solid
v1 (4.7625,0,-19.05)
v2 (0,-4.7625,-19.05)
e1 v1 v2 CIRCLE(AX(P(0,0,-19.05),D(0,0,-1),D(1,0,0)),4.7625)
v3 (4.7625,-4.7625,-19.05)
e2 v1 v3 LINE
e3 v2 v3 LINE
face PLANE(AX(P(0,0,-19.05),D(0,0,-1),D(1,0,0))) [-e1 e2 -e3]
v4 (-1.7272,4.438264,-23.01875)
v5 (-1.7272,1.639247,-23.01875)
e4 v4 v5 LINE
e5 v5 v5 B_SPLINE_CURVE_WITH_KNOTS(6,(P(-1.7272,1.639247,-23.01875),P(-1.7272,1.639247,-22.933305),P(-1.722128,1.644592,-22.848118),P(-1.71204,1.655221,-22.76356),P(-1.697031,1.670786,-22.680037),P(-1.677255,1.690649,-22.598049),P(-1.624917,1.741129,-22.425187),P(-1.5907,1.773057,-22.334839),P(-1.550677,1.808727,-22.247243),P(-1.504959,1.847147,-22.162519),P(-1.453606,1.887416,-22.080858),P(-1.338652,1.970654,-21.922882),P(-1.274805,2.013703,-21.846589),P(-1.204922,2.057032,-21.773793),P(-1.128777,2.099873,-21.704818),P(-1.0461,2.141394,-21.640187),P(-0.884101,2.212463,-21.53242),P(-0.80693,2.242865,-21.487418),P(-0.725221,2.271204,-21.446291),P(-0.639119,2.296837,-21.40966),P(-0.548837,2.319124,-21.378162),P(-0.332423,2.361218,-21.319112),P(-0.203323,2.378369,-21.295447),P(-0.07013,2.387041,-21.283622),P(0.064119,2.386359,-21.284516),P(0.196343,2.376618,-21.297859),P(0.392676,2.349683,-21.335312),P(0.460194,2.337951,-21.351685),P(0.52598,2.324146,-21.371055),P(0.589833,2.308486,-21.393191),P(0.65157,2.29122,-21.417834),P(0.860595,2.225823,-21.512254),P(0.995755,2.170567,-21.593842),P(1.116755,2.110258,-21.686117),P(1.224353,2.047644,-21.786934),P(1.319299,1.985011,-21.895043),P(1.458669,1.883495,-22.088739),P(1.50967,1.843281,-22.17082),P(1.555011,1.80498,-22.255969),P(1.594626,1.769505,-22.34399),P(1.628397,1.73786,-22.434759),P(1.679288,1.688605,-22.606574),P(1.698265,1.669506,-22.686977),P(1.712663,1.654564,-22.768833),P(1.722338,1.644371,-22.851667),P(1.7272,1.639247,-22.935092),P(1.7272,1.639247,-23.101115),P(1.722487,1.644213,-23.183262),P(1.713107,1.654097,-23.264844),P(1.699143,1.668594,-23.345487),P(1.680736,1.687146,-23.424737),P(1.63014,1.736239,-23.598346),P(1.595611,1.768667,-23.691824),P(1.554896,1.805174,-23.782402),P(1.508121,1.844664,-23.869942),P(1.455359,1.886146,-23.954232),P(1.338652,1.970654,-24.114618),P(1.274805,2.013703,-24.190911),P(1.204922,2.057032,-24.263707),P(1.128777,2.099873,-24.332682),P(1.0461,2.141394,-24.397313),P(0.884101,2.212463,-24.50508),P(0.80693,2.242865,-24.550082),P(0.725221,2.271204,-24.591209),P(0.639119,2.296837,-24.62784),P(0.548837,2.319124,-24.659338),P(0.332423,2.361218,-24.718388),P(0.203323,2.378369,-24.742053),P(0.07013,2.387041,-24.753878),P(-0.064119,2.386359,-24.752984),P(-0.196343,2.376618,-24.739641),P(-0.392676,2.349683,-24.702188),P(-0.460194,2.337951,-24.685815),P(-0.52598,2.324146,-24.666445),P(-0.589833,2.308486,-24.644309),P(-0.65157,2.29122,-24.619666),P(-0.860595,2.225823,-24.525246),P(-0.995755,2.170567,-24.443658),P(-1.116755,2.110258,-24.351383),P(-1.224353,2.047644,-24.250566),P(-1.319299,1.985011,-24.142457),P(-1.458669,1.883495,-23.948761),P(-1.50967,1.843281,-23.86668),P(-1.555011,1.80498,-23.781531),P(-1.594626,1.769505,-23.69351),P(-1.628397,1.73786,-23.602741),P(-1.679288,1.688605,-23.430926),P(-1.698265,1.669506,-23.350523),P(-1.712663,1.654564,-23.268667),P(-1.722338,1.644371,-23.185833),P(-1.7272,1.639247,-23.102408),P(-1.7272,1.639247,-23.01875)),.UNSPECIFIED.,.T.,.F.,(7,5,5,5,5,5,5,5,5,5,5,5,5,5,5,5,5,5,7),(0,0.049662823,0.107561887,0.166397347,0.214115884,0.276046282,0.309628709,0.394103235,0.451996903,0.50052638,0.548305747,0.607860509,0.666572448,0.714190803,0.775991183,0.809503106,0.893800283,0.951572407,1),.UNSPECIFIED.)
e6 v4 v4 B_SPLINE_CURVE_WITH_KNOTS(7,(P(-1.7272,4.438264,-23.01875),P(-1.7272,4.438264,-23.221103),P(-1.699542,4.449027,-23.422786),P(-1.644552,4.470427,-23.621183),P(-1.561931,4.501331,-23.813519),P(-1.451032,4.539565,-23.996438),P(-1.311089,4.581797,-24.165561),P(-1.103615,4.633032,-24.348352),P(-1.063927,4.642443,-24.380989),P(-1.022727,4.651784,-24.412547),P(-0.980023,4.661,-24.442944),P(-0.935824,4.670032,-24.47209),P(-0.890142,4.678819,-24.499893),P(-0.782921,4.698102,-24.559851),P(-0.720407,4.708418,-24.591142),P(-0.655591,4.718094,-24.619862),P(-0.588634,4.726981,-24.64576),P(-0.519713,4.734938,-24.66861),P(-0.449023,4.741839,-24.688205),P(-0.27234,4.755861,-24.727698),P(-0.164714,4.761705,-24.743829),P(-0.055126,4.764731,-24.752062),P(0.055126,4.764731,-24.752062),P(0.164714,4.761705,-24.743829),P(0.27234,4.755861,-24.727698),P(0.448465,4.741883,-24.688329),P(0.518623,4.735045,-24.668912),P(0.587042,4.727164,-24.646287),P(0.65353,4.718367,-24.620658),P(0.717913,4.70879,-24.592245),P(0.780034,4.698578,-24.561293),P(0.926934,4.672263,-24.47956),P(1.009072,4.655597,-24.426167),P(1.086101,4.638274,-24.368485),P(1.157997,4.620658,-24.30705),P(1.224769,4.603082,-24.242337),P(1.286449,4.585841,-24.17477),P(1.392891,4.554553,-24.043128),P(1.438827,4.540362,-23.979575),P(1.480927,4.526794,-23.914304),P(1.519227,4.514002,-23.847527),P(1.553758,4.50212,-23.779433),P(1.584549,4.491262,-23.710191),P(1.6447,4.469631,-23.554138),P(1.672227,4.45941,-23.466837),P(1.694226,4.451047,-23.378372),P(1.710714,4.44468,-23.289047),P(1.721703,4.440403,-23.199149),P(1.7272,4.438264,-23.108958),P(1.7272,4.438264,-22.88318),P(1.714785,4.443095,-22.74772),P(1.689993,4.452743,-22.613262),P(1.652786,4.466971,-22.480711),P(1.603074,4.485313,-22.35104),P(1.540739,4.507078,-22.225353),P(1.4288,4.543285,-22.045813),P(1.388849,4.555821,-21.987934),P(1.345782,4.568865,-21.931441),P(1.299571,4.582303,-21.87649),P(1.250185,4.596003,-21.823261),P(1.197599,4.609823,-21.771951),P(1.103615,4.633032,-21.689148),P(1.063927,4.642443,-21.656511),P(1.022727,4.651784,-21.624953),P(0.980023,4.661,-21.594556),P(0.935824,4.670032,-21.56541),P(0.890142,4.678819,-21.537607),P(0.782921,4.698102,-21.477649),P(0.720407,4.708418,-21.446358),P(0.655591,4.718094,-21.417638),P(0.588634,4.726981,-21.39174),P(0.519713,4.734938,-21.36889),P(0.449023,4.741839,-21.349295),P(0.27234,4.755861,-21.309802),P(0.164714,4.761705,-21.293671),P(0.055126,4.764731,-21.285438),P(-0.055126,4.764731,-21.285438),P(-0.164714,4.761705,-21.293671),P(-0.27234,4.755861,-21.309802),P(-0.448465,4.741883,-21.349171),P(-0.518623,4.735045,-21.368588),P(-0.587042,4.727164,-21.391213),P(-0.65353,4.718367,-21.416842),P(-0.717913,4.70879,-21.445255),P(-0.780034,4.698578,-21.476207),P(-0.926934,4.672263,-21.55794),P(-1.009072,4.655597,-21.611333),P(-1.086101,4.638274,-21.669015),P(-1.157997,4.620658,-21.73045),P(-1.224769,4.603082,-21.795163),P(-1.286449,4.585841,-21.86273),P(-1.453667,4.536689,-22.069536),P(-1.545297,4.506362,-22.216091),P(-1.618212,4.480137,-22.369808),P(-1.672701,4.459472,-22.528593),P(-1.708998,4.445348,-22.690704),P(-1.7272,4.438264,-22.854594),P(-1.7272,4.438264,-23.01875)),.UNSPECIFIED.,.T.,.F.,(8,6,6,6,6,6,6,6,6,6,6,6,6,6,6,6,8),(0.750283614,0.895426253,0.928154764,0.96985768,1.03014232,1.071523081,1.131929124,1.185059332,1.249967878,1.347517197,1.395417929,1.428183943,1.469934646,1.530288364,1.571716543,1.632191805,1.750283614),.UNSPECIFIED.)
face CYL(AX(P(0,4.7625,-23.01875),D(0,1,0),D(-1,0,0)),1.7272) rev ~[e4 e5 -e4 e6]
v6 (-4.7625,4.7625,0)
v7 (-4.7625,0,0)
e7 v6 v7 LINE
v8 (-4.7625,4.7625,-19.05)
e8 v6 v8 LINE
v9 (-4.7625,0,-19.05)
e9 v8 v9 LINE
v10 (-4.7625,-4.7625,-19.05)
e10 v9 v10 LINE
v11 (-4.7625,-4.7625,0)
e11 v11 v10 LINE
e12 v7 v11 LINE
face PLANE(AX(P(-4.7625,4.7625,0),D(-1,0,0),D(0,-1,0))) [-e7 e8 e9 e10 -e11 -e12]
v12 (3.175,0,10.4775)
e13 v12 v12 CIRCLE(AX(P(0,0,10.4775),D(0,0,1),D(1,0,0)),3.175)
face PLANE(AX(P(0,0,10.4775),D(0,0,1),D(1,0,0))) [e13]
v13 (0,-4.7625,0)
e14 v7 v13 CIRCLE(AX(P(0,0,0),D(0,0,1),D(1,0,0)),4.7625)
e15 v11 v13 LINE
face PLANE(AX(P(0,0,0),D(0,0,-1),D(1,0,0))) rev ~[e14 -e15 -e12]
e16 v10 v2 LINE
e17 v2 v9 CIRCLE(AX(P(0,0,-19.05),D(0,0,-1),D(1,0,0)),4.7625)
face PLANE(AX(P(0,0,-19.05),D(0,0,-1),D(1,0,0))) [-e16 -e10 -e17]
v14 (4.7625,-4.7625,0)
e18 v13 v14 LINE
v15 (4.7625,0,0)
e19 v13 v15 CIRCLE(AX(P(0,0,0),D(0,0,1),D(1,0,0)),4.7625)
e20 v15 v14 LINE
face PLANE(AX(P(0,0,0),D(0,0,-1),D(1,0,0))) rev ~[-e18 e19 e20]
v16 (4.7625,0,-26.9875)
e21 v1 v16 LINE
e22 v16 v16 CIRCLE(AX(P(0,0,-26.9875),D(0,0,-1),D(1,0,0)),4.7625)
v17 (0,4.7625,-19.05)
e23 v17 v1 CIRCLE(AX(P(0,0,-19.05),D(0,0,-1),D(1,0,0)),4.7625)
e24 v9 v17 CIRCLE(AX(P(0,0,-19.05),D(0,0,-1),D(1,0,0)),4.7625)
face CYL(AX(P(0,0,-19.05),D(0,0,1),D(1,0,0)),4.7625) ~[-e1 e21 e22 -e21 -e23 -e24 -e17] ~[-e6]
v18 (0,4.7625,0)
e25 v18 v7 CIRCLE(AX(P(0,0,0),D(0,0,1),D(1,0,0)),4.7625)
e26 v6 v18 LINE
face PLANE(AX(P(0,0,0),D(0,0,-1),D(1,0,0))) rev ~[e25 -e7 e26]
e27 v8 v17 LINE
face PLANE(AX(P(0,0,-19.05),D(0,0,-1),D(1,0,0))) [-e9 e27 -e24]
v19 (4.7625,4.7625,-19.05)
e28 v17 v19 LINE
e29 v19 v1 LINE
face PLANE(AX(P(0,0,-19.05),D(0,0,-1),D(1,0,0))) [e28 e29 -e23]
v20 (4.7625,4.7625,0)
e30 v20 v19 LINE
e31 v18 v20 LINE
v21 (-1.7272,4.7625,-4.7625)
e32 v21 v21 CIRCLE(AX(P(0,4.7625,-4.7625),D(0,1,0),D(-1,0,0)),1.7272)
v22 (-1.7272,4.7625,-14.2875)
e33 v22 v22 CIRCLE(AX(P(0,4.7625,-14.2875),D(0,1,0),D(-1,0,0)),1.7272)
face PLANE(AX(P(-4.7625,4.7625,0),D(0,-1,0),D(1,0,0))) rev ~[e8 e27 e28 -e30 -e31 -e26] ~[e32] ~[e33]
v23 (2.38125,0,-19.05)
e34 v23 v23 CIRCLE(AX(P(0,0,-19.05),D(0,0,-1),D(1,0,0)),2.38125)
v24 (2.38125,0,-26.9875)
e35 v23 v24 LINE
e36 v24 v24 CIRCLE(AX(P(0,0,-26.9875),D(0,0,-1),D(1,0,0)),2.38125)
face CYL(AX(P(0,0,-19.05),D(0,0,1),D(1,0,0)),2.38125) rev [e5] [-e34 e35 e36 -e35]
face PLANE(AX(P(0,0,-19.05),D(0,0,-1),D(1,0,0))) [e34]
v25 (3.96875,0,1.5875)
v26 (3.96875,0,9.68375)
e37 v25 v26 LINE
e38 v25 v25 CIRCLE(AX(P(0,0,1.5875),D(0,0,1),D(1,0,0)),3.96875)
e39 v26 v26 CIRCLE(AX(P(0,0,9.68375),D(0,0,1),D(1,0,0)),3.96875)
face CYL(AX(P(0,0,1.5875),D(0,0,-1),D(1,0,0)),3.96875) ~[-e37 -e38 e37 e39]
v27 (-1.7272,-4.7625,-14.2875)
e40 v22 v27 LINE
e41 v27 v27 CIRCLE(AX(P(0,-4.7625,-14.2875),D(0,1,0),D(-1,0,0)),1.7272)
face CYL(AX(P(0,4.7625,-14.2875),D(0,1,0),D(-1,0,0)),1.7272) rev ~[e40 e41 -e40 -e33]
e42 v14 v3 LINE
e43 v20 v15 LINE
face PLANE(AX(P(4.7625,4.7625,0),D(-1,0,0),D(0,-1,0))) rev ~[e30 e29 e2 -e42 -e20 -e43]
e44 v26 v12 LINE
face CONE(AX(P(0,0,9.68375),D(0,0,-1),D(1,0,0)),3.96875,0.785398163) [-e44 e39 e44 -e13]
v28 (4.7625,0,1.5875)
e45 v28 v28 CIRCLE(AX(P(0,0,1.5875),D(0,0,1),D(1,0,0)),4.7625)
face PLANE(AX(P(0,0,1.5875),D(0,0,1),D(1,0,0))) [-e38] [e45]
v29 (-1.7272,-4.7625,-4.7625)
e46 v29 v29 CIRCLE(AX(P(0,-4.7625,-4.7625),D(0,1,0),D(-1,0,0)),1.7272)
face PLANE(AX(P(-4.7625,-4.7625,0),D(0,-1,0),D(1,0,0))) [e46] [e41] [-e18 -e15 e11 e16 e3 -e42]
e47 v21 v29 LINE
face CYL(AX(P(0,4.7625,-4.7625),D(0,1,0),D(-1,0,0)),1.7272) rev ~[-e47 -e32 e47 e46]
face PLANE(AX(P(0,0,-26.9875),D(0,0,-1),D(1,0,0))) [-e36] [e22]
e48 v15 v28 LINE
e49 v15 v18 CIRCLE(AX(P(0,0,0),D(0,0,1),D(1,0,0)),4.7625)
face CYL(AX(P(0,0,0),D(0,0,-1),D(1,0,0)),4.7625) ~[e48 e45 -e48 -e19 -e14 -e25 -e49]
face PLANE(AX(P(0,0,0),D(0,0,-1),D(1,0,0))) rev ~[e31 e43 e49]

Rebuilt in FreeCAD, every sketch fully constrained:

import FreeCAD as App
import Part
import Sketcher
from FreeCAD import Vector
Q = App.Units.Quantity


def edges_at(feature, points):
    """Names of the edges that pass closest to the given points."""
    edges = feature.Shape.Edges
    near = lambda p: min(range(len(edges)), key=lambda i: edges[i].distToShape(Part.Vertex(*p))[0])
    return sorted({f"Edge{near(p) + 1}" for p in points})


def add_polygon(sketch, points):
    """Adds a closed chain of lines whose ends are joined by coincident constraints."""
    first, n = sketch.GeometryCount, len(points)
    for a, b in zip(points, points[1:] + points[:1]):
        sketch.addGeometry(Part.LineSegment(App.Vector(*a, 0), App.Vector(*b, 0)), False)
    for i in range(n):
        sketch.addConstraint(Sketcher.Constraint("Coincident", first + i, 2, first + (i + 1) % n, 1))

doc = App.newDocument("Part")
body = doc.addObject("PartDesign::Body", "Body")

sketch1 = body.newObject("Sketcher::SketchObject", "Sketch")
sketch1.AttachmentSupport = (doc.getObject("XY_Plane"), [""])
sketch1.MapMode = "FlatFace"
sketch1.addGeometry(Part.Circle(Vector(0, 0, 0), Vector(0, 0, 1), 4.7625), False)
sketch1.addConstraint([
    Sketcher.Constraint("Coincident", 0, 3, -1, 1),
    Sketcher.Constraint("Diameter", 0, Q("0.375 in")),
])
pad1 = body.newObject("PartDesign::Pad", "Pad")
pad1.Profile = sketch1
pad1.Length = Q("0.0625 in")

sketch2 = body.newObject("Sketcher::SketchObject", "Sketch001")
sketch2.AttachmentSupport = (doc.getObject("XY_Plane"), [""])
sketch2.MapMode = "FlatFace"
sketch2.AttachmentOffset = App.Placement(Vector(0, 0, 0.0625 * 25.4), App.Rotation())
sketch2.addGeometry(Part.Circle(Vector(0, 0, 0), Vector(0, 0, 1), 3.96875), False)
sketch2.addConstraint([
    Sketcher.Constraint("Coincident", 0, 3, -1, 1),
    Sketcher.Constraint("Diameter", 0, Q("0.3125 in")),
])
pad2 = body.newObject("PartDesign::Pad", "Pad001")
pad2.Profile = sketch2
pad2.Length = Q("0.35 in")

sketch3 = body.newObject("Sketcher::SketchObject", "Sketch002")
sketch3.AttachmentSupport = (doc.getObject("XY_Plane"), [""])
sketch3.MapMode = "FlatFace"
add_polygon(sketch3, [(-4.7625, -4.7625), (-4.7625, 4.7625), (4.7625, 4.7625), (4.7625, -4.7625)])
sketch3.addConstraint([
    Sketcher.Constraint("Vertical", 0),
    Sketcher.Constraint("Horizontal", 1),
    Sketcher.Constraint("Vertical", 2),
    Sketcher.Constraint("Horizontal", 3),
    Sketcher.Constraint("Symmetric", 0, 2, 2, 2, -1, 1),
    Sketcher.Constraint("Equal", 3, 0),
    Sketcher.Constraint("DistanceX", 1, 1, 1, 2, Q("0.375 in")),
])
pad3 = body.newObject("PartDesign::Pad", "Pad002")
pad3.Profile = sketch3
pad3.Length = Q("0.75 in")
pad3.Reversed = True
doc.recompute()

chamfer = body.newObject("PartDesign::Chamfer", "Chamfer")
chamfer.Base = (pad3, edges_at(pad3, [(-3.969, 0, 10.477)]))
chamfer.Size = Q("0.03125 in")

sketch4 = body.newObject("Sketcher::SketchObject", "Sketch003")
sketch4.AttachmentSupport = (doc.getObject("XY_Plane"), [""])
sketch4.MapMode = "FlatFace"
sketch4.AttachmentOffset = App.Placement(Vector(0, 0, -0.75 * 25.4), App.Rotation())
sketch4.addGeometry([
    Part.Circle(Vector(0, 0, 0), Vector(0, 0, 1), 4.7625),
    Part.Circle(Vector(0, 0, 0), Vector(0, 0, 1), 2.38125),
], False)
sketch4.addConstraint([
    Sketcher.Constraint("Coincident", 0, 3, -1, 1),
    Sketcher.Constraint("Coincident", 1, 3, -1, 1),
    Sketcher.Constraint("Diameter", 0, Q("0.375 in")),
    Sketcher.Constraint("Diameter", 1, Q("0.1875 in")),
])
pad4 = body.newObject("PartDesign::Pad", "Pad003")
pad4.Profile = sketch4
pad4.Length = Q("0.3125 in")
pad4.Reversed = True

sketch5 = body.newObject("Sketcher::SketchObject", "Sketch004")
sketch5.AttachmentSupport = (doc.getObject("XZ_Plane"), [""])
sketch5.MapMode = "FlatFace"
sketch5.AttachmentOffset = App.Placement(Vector(0, 0, -0.1875 * 25.4), App.Rotation())
sketch5.addGeometry([
    Part.Circle(Vector(0, -4.7625, 0), Vector(0, 0, 1), 1.7272),
    Part.Circle(Vector(0, -14.2875, 0), Vector(0, 0, 1), 1.7272),
], False)
sketch5.addConstraint([
    Sketcher.Constraint("Equal", 0, 1),
    Sketcher.Constraint("PointOnObject", 0, 3, -2),
    Sketcher.Constraint("PointOnObject", 1, 3, -2),
    Sketcher.Constraint("Diameter", 0, Q("0.136 in")),
    Sketcher.Constraint("DistanceY", 0, 3, -1, 1, Q("0.1875 in")),
    Sketcher.Constraint("DistanceY", 1, 3, -1, 1, Q("0.5625 in")),
])
pocket1 = body.newObject("PartDesign::Pocket", "Pocket")
pocket1.Profile = sketch5
pocket1.Type = "ThroughAll"
pocket1.Reversed = True

sketch6 = body.newObject("Sketcher::SketchObject", "Sketch005")
sketch6.AttachmentSupport = (doc.getObject("XZ_Plane"), [""])
sketch6.MapMode = "FlatFace"
sketch6.AttachmentOffset = App.Placement(Vector(0, 0, -0.1875 * 25.4), App.Rotation())
sketch6.addGeometry(Part.Circle(Vector(0, -23.01875, 0), Vector(0, 0, 1), 1.7272), False)
sketch6.addConstraint([
    Sketcher.Constraint("PointOnObject", 0, 3, -2),
    Sketcher.Constraint("Diameter", 0, Q("0.136 in")),
    Sketcher.Constraint("DistanceY", 0, 3, -1, 1, Q("0.90625 in")),
])
pocket2 = body.newObject("PartDesign::Pocket", "Pocket001")
pocket2.Profile = sketch6
pocket2.Length = 4.123253
pocket2.Reversed = True

doc.recompute()
